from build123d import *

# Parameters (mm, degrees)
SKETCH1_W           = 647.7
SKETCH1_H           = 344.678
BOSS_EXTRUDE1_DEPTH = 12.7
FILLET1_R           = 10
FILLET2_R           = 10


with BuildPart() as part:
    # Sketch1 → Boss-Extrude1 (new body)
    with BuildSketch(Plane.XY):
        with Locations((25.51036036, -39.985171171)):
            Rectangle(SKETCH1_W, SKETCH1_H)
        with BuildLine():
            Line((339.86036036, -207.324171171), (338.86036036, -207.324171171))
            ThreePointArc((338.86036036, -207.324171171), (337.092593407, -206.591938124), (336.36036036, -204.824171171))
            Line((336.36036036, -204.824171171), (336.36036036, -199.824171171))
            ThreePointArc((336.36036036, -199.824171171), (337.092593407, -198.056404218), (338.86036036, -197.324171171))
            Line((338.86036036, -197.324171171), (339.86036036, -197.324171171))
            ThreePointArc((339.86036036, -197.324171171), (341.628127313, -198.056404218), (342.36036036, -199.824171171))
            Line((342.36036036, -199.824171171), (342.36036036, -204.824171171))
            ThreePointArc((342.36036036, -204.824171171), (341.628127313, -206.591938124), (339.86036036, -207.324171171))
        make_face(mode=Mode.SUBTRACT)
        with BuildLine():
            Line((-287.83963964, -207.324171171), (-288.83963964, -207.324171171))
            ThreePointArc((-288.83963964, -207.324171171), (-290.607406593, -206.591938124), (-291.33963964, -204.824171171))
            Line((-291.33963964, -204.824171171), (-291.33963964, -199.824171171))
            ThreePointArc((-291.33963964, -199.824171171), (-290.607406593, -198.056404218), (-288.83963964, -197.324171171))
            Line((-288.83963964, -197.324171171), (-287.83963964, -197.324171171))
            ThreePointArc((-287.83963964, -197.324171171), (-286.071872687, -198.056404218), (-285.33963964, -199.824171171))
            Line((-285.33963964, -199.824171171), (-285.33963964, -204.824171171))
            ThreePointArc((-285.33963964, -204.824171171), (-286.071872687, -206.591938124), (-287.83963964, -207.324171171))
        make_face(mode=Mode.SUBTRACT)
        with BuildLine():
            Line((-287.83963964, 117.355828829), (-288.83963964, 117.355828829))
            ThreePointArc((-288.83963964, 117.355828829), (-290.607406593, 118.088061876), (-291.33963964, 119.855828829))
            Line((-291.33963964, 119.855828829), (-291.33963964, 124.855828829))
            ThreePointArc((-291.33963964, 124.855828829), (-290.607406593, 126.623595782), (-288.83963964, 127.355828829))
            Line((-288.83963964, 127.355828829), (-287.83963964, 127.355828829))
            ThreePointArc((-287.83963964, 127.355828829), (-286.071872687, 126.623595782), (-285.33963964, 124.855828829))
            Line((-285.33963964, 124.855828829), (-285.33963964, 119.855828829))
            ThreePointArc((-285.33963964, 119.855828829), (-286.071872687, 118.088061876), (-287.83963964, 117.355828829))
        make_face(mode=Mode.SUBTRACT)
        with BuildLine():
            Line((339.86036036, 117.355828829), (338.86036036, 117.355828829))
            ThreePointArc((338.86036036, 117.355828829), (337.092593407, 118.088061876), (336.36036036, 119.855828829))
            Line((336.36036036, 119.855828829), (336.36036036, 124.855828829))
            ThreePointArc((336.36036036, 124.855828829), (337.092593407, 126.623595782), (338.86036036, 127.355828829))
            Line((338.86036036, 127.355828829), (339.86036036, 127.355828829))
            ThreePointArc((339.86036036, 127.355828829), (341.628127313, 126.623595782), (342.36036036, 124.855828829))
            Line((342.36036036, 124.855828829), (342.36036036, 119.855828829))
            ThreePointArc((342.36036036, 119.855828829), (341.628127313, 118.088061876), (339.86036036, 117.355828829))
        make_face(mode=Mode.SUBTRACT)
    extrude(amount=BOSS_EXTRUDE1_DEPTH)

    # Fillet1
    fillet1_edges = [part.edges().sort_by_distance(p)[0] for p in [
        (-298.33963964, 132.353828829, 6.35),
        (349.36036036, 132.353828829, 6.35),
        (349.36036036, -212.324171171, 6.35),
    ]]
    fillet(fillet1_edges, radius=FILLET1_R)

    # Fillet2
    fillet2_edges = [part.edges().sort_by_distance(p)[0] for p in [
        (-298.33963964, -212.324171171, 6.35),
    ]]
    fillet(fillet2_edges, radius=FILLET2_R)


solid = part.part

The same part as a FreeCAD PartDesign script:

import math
import FreeCAD as App
import Part
import Sketcher


def edges_at(feature, points):
    """Names of the edges that pass closest to the given points."""
    edges = feature.Shape.Edges
    near = lambda p: min(range(len(edges)), key=lambda i: edges[i].distToShape(Part.Vertex(*p))[0])
    return sorted({f"Edge{near(p) + 1}" for p in points})

doc = App.newDocument("Part")
body = doc.addObject("PartDesign::Body", "Body")

# Sketch on XY plane
sketch1 = body.newObject("Sketcher::SketchObject", "Sketch")
sketch1.AttachmentSupport = (doc.getObject("XY_Plane"), [""])
sketch1.MapMode = "FlatFace"
sketch1.addGeometry(Part.LineSegment(App.Vector(-298.33964, 132.353829, 0), App.Vector(-298.33964, -212.324171, 0)), False)
sketch1.addGeometry(Part.LineSegment(App.Vector(-298.33964, -212.324171, 0), App.Vector(349.36036, -212.324171, 0)), False)
sketch1.addGeometry(Part.LineSegment(App.Vector(349.36036, -212.324171, 0), App.Vector(349.36036, 132.353829, 0)), False)
sketch1.addGeometry(Part.LineSegment(App.Vector(349.36036, 132.353829, 0), App.Vector(-298.33964, 132.353829, 0)), False)
sketch1.addGeometry(Part.ArcOfCircle(Part.Circle(App.Vector(-287.83964, -204.824171, 0), App.Vector(0, 0, 1), 2.5), math.radians(-90), math.radians(0)), False)
sketch1.addGeometry(Part.LineSegment(App.Vector(-287.83964, -207.324171, 0), App.Vector(-288.83964, -207.324171, 0)), False)
sketch1.addGeometry(Part.ArcOfCircle(Part.Circle(App.Vector(-288.83964, -204.824171, 0), App.Vector(0, 0, 1), 2.5), math.radians(180), math.radians(270)), False)
sketch1.addGeometry(Part.LineSegment(App.Vector(-291.33964, -204.824171, 0), App.Vector(-291.33964, -199.824171, 0)), False)
sketch1.addGeometry(Part.ArcOfCircle(Part.Circle(App.Vector(-288.83964, -199.824171, 0), App.Vector(0, 0, 1), 2.5), math.radians(90), math.radians(180)), False)
sketch1.addGeometry(Part.LineSegment(App.Vector(-288.83964, -197.324171, 0), App.Vector(-287.83964, -197.324171, 0)), False)
sketch1.addGeometry(Part.ArcOfCircle(Part.Circle(App.Vector(-287.83964, -199.824171, 0), App.Vector(0, 0, 1), 2.5), math.radians(0), math.radians(90)), False)
sketch1.addGeometry(Part.LineSegment(App.Vector(-285.33964, -199.824171, 0), App.Vector(-285.33964, -204.824171, 0)), False)
sketch1.addGeometry(Part.ArcOfCircle(Part.Circle(App.Vector(339.86036, -204.824171, 0), App.Vector(0, 0, 1), 2.5), math.radians(-90), math.radians(0)), False)
sketch1.addGeometry(Part.LineSegment(App.Vector(339.86036, -207.324171, 0), App.Vector(338.86036, -207.324171, 0)), False)
sketch1.addGeometry(Part.ArcOfCircle(Part.Circle(App.Vector(338.86036, -204.824171, 0), App.Vector(0, 0, 1), 2.5), math.radians(180), math.radians(270)), False)
sketch1.addGeometry(Part.LineSegment(App.Vector(336.36036, -204.824171, 0), App.Vector(336.36036, -199.824171, 0)), False)
sketch1.addGeometry(Part.ArcOfCircle(Part.Circle(App.Vector(338.86036, -199.824171, 0), App.Vector(0, 0, 1), 2.5), math.radians(90), math.radians(180)), False)
sketch1.addGeometry(Part.LineSegment(App.Vector(338.86036, -197.324171, 0), App.Vector(339.86036, -197.324171, 0)), False)
sketch1.addGeometry(Part.ArcOfCircle(Part.Circle(App.Vector(339.86036, -199.824171, 0), App.Vector(0, 0, 1), 2.5), math.radians(0), math.radians(90)), False)
sketch1.addGeometry(Part.LineSegment(App.Vector(342.36036, -199.824171, 0), App.Vector(342.36036, -204.824171, 0)), False)
sketch1.addGeometry(Part.ArcOfCircle(Part.Circle(App.Vector(-287.83964, 119.855829, 0), App.Vector(0, 0, 1), 2.5), math.radians(-90), math.radians(0)), False)
sketch1.addGeometry(Part.LineSegment(App.Vector(-287.83964, 117.355829, 0), App.Vector(-288.83964, 117.355829, 0)), False)
sketch1.addGeometry(Part.ArcOfCircle(Part.Circle(App.Vector(-288.83964, 119.855829, 0), App.Vector(0, 0, 1), 2.5), math.radians(180), math.radians(270)), False)
sketch1.addGeometry(Part.LineSegment(App.Vector(-291.33964, 119.855829, 0), App.Vector(-291.33964, 124.855829, 0)), False)
sketch1.addGeometry(Part.ArcOfCircle(Part.Circle(App.Vector(-288.83964, 124.855829, 0), App.Vector(0, 0, 1), 2.5), math.radians(90), math.radians(180)), False)
sketch1.addGeometry(Part.LineSegment(App.Vector(-288.83964, 127.355829, 0), App.Vector(-287.83964, 127.355829, 0)), False)
sketch1.addGeometry(Part.ArcOfCircle(Part.Circle(App.Vector(-287.83964, 124.855829, 0), App.Vector(0, 0, 1), 2.5), math.radians(0), math.radians(90)), False)
sketch1.addGeometry(Part.LineSegment(App.Vector(-285.33964, 124.855829, 0), App.Vector(-285.33964, 119.855829, 0)), False)
sketch1.addGeometry(Part.ArcOfCircle(Part.Circle(App.Vector(339.86036, 119.855829, 0), App.Vector(0, 0, 1), 2.5), math.radians(-90), math.radians(0)), False)
sketch1.addGeometry(Part.LineSegment(App.Vector(339.86036, 117.355829, 0), App.Vector(338.86036, 117.355829, 0)), False)
sketch1.addGeometry(Part.ArcOfCircle(Part.Circle(App.Vector(338.86036, 119.855829, 0), App.Vector(0, 0, 1), 2.5), math.radians(180), math.radians(270)), False)
sketch1.addGeometry(Part.LineSegment(App.Vector(336.36036, 119.855829, 0), App.Vector(336.36036, 124.855829, 0)), False)
sketch1.addGeometry(Part.ArcOfCircle(Part.Circle(App.Vector(338.86036, 124.855829, 0), App.Vector(0, 0, 1), 2.5), math.radians(90), math.radians(180)), False)
sketch1.addGeometry(Part.LineSegment(App.Vector(338.86036, 127.355829, 0), App.Vector(339.86036, 127.355829, 0)), False)
sketch1.addGeometry(Part.ArcOfCircle(Part.Circle(App.Vector(339.86036, 124.855829, 0), App.Vector(0, 0, 1), 2.5), math.radians(0), math.radians(90)), False)
sketch1.addGeometry(Part.LineSegment(App.Vector(342.36036, 124.855829, 0), App.Vector(342.36036, 119.855829, 0)), False)
sketch1.addConstraint(Sketcher.Constraint("Coincident", 0, 2, 1, 1))
sketch1.addConstraint(Sketcher.Constraint("Coincident", 1, 2, 2, 1))
sketch1.addConstraint(Sketcher.Constraint("Coincident", 2, 2, 3, 1))
sketch1.addConstraint(Sketcher.Constraint("Coincident", 3, 2, 0, 1))
sketch1.addConstraint(Sketcher.Constraint("Tangent", 4, 1, 5, 1))
sketch1.addConstraint(Sketcher.Constraint("Tangent", 5, 2, 6, 2))
sketch1.addConstraint(Sketcher.Constraint("Tangent", 6, 1, 7, 1))
sketch1.addConstraint(Sketcher.Constraint("Tangent", 7, 2, 8, 2))
sketch1.addConstraint(Sketcher.Constraint("Tangent", 8, 1, 9, 1))
sketch1.addConstraint(Sketcher.Constraint("Tangent", 9, 2, 10, 2))
sketch1.addConstraint(Sketcher.Constraint("Tangent", 10, 1, 11, 1))
sketch1.addConstraint(Sketcher.Constraint("Tangent", 11, 2, 4, 2))
sketch1.addConstraint(Sketcher.Constraint("Tangent", 12, 1, 13, 1))
sketch1.addConstraint(Sketcher.Constraint("Tangent", 13, 2, 14, 2))
sketch1.addConstraint(Sketcher.Constraint("Tangent", 14, 1, 15, 1))
sketch1.addConstraint(Sketcher.Constraint("Tangent", 15, 2, 16, 2))
sketch1.addConstraint(Sketcher.Constraint("Tangent", 16, 1, 17, 1))
sketch1.addConstraint(Sketcher.Constraint("Tangent", 17, 2, 18, 2))
sketch1.addConstraint(Sketcher.Constraint("Tangent", 18, 1, 19, 1))
sketch1.addConstraint(Sketcher.Constraint("Tangent", 19, 2, 12, 2))
sketch1.addConstraint(Sketcher.Constraint("Tangent", 20, 1, 21, 1))
sketch1.addConstraint(Sketcher.Constraint("Tangent", 21, 2, 22, 2))
sketch1.addConstraint(Sketcher.Constraint("Tangent", 22, 1, 23, 1))
sketch1.addConstraint(Sketcher.Constraint("Tangent", 23, 2, 24, 2))
sketch1.addConstraint(Sketcher.Constraint("Tangent", 24, 1, 25, 1))
sketch1.addConstraint(Sketcher.Constraint("Tangent", 25, 2, 26, 2))
sketch1.addConstraint(Sketcher.Constraint("Tangent", 26, 1, 27, 1))
sketch1.addConstraint(Sketcher.Constraint("Tangent", 27, 2, 20, 2))
sketch1.addConstraint(Sketcher.Constraint("Tangent", 28, 1, 29, 1))
sketch1.addConstraint(Sketcher.Constraint("Tangent", 29, 2, 30, 2))
sketch1.addConstraint(Sketcher.Constraint("Tangent", 30, 1, 31, 1))
sketch1.addConstraint(Sketcher.Constraint("Tangent", 31, 2, 32, 2))
sketch1.addConstraint(Sketcher.Constraint("Tangent", 32, 1, 33, 1))
sketch1.addConstraint(Sketcher.Constraint("Tangent", 33, 2, 34, 2))
sketch1.addConstraint(Sketcher.Constraint("Tangent", 34, 1, 35, 1))
sketch1.addConstraint(Sketcher.Constraint("Tangent", 35, 2, 28, 2))
sketch1.addConstraint(Sketcher.Constraint("Vertical", 0))
sketch1.addConstraint(Sketcher.Constraint("Horizontal", 1))
sketch1.addConstraint(Sketcher.Constraint("Vertical", 2))
sketch1.addConstraint(Sketcher.Constraint("Horizontal", 3))
sketch1.addConstraint(Sketcher.Constraint("Horizontal", 5))
sketch1.addConstraint(Sketcher.Constraint("Vertical", 7))
sketch1.addConstraint(Sketcher.Constraint("Horizontal", 9))
sketch1.addConstraint(Sketcher.Constraint("Vertical", 11))
sketch1.addConstraint(Sketcher.Constraint("Horizontal", 13))
sketch1.addConstraint(Sketcher.Constraint("Vertical", 15))
sketch1.addConstraint(Sketcher.Constraint("Horizontal", 17))
sketch1.addConstraint(Sketcher.Constraint("Vertical", 19))
sketch1.addConstraint(Sketcher.Constraint("Horizontal", 21))
sketch1.addConstraint(Sketcher.Constraint("Vertical", 23))
sketch1.addConstraint(Sketcher.Constraint("Horizontal", 25))
sketch1.addConstraint(Sketcher.Constraint("Vertical", 27))
sketch1.addConstraint(Sketcher.Constraint("Horizontal", 29))
sketch1.addConstraint(Sketcher.Constraint("Vertical", 31))
sketch1.addConstraint(Sketcher.Constraint("Horizontal", 33))
sketch1.addConstraint(Sketcher.Constraint("Vertical", 35))
sketch1.addConstraint(Sketcher.Constraint("Equal", 4, 6))
sketch1.addConstraint(Sketcher.Constraint("Equal", 6, 8))
sketch1.addConstraint(Sketcher.Constraint("Equal", 8, 10))
sketch1.addConstraint(Sketcher.Constraint("Equal", 10, 12))
sketch1.addConstraint(Sketcher.Constraint("Equal", 12, 14))
sketch1.addConstraint(Sketcher.Constraint("Equal", 14, 16))
sketch1.addConstraint(Sketcher.Constraint("Equal", 16, 18))
sketch1.addConstraint(Sketcher.Constraint("Equal", 18, 20))
sketch1.addConstraint(Sketcher.Constraint("Equal", 20, 22))
sketch1.addConstraint(Sketcher.Constraint("Equal", 22, 24))
sketch1.addConstraint(Sketcher.Constraint("Equal", 24, 26))
sketch1.addConstraint(Sketcher.Constraint("Equal", 26, 28))
sketch1.addConstraint(Sketcher.Constraint("Equal", 28, 30))
sketch1.addConstraint(Sketcher.Constraint("Equal", 30, 32))
sketch1.addConstraint(Sketcher.Constraint("Equal", 32, 34))
sketch1.addConstraint(Sketcher.Constraint("Horizontal", 6, 3, 12, 3))
sketch1.addConstraint(Sketcher.Constraint("Horizontal", 10, 3, 16, 3))
sketch1.addConstraint(Sketcher.Constraint("Horizontal", 22, 3, 28, 3))
sketch1.addConstraint(Sketcher.Constraint("Horizontal", 26, 3, 32, 3))
sketch1.addConstraint(Sketcher.Constraint("Vertical", 10, 3, 20, 3))
sketch1.addConstraint(Sketcher.Constraint("Vertical", 8, 3, 22, 3))
sketch1.addConstraint(Sketcher.Constraint("Vertical", 18, 3, 28, 3))
sketch1.addConstraint(Sketcher.Constraint("Vertical", 16, 3, 30, 3))
sketch1.addConstraint(Sketcher.Constraint("Equal", 9, 13))
sketch1.addConstraint(Sketcher.Constraint("Equal", 19, 23))
sketch1.addConstraint(Sketcher.Constraint("Radius", 4, 2.5))
sketch1.addConstraint(Sketcher.Constraint("DistanceX", 5, 2, 5, 1, 1.0))
sketch1.addConstraint(Sketcher.Constraint("DistanceY", 7, 1, 7, 2, 5.0))
sketch1.addConstraint(Sketcher.Constraint("DistanceX", 1, 1, 1, 2, 647.7))
sketch1.addConstraint(Sketcher.Constraint("DistanceY", 0, 2, 4, 1, 5.0))
sketch1.addConstraint(Sketcher.Constraint("DistanceX", 4, 3, 12, 3, 627.7))
sketch1.addConstraint(Sketcher.Constraint("DistanceX", 0, 2, 6, 3, 9.5))
sketch1.addConstraint(Sketcher.Constraint("DistanceY", 0, 2, 0, 1, 344.678))
sketch1.addConstraint(Sketcher.Constraint("DistanceY", 10, 3, 20, 3, 319.68))
sketch1.addConstraint(Sketcher.Constraint("DistanceX", 4, 3, -1, 1, 287.83964))
sketch1.addConstraint(Sketcher.Constraint("DistanceY", 4, 3, -1, 1, 204.824171))
pad1 = body.newObject("PartDesign::Pad", "Pad")
pad1.Profile = sketch1
pad1.Length = 12.7
doc.recompute()

fillet = body.newObject("PartDesign::Fillet", "Fillet")
fillet.Base = (pad1, edges_at(pad1, [(-298.34, 132.354, 6.35), (349.36, 132.354, 6.35), (349.36, -212.324, 6.35)]))
fillet.Radius = 10
doc.recompute()

fillet2 = body.newObject("PartDesign::Fillet", "Fillet001")
fillet2.Base = (fillet, edges_at(fillet, [(-298.34, -212.324, 6.35)]))
fillet2.Radius = 10

doc.recompute()
